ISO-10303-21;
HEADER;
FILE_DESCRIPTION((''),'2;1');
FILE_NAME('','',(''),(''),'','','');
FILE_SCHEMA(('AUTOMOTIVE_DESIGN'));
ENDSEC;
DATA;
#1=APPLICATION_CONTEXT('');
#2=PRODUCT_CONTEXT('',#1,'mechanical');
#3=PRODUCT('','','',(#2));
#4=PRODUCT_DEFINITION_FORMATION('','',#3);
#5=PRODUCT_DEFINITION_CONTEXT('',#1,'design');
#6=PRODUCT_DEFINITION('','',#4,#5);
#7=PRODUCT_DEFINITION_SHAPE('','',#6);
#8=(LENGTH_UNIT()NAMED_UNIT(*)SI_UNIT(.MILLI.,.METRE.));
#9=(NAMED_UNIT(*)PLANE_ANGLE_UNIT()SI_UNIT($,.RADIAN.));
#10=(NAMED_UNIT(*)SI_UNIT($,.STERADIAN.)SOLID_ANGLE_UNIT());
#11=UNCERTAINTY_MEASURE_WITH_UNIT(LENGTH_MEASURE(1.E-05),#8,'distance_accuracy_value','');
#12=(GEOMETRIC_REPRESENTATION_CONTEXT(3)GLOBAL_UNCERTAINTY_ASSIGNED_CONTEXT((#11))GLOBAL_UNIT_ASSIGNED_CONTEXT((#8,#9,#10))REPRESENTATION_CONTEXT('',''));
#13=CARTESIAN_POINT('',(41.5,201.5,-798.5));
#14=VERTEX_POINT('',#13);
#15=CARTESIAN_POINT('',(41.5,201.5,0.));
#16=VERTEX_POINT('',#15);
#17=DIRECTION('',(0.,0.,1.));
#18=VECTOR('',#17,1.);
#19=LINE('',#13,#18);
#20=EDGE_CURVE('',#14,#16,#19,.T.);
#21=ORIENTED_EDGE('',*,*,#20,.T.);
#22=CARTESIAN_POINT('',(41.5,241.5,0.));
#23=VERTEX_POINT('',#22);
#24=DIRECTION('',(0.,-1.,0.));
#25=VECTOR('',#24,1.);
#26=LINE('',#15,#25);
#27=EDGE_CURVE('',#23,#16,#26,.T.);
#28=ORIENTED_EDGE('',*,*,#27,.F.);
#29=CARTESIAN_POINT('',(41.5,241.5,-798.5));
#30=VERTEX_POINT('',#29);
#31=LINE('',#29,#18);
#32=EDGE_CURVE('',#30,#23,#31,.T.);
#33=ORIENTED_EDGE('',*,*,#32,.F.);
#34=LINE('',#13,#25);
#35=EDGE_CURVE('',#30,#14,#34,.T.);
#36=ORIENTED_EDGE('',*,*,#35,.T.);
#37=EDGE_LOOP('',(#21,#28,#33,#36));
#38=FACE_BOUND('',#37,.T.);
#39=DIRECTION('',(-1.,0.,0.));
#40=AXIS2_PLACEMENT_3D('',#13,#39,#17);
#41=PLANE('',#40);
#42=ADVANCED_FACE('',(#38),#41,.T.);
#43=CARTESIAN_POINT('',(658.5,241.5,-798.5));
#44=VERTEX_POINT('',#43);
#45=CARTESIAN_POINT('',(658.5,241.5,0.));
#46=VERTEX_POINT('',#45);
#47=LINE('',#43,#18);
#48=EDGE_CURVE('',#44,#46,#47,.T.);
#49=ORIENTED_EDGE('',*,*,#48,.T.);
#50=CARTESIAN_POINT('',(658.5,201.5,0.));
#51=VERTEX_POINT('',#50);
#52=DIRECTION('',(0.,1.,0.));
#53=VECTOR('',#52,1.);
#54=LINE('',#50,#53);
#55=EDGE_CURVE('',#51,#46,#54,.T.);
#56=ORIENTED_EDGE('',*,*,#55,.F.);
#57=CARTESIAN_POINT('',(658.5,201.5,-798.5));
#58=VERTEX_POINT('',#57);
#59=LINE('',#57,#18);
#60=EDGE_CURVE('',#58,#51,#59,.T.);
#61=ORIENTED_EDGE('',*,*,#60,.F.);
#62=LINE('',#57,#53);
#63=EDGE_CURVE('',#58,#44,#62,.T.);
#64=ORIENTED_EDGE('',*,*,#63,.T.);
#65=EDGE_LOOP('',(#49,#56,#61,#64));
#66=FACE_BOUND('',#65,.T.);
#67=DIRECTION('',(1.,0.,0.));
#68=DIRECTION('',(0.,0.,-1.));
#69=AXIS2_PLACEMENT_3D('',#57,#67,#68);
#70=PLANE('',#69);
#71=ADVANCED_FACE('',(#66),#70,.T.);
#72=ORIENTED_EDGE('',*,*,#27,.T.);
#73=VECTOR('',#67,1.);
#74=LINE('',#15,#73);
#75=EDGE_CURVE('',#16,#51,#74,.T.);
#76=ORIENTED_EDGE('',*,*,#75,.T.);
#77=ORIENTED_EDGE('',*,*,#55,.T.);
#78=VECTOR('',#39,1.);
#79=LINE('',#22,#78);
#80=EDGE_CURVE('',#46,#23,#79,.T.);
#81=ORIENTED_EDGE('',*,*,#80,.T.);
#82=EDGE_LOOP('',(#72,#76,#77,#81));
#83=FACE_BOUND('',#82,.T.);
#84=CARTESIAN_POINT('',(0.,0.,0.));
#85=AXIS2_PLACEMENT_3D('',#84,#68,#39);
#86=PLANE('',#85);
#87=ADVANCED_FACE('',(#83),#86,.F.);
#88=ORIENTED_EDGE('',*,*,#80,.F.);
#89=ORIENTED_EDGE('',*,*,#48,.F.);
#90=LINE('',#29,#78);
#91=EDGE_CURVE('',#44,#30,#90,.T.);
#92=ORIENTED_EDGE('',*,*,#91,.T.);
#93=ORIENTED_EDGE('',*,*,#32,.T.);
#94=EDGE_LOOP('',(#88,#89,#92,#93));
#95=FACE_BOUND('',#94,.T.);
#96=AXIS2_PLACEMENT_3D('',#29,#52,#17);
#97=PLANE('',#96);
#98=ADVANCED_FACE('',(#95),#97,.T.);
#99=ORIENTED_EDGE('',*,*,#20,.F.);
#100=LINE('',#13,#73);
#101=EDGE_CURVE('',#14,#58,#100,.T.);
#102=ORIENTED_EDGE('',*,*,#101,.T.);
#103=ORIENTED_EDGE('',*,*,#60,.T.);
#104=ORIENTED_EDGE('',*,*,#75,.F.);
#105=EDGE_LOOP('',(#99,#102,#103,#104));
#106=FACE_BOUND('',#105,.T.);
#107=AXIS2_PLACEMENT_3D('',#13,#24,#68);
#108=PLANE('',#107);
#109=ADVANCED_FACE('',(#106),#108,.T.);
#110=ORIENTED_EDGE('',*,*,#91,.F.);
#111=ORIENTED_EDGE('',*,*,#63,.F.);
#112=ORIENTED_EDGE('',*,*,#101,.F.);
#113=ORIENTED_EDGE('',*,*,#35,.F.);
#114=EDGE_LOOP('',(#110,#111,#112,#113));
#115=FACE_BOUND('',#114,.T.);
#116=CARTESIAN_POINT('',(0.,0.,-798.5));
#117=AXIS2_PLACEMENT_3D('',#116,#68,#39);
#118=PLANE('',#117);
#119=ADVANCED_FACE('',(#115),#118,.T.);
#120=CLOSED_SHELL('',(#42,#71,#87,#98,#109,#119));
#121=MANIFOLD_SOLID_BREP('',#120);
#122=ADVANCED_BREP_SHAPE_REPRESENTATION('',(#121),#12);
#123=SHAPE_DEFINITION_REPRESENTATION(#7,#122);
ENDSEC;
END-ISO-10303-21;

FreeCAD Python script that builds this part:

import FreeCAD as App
import Part
import Sketcher


def add_polygon(sketch, points):
    """Adds a closed chain of lines whose ends are joined by coincident constraints."""
    first, n = sketch.GeometryCount, len(points)
    for a, b in zip(points, points[1:] + points[:1]):
        sketch.addGeometry(Part.LineSegment(App.Vector(*a, 0), App.Vector(*b, 0)), False)
    for i in range(n):
        sketch.addConstraint(Sketcher.Constraint("Coincident", first + i, 2, first + (i + 1) % n, 1))

doc = App.newDocument("Part")
body = doc.addObject("PartDesign::Body", "Body")

# Sketch on XY plane
sketch1 = doc.addObject("Sketcher::SketchObject", "Sketch")
body.addObject(sketch1)
sketch1.AttachmentSupport = (doc.XY_Plane, [""])
sketch1.MapMode = "FlatFace"
add_polygon(sketch1, [(41.5, 241.5), (41.5, 201.5), (658.5, 201.5), (658.5, 241.5)])  # lines 0-3
sketch1.addConstraint([
    Sketcher.Constraint("Vertical", 0),
    Sketcher.Constraint("Horizontal", 1),
    Sketcher.Constraint("Vertical", 2),
    Sketcher.Constraint("Horizontal", 3),
    Sketcher.Constraint("DistanceX", 1, 1, 1, 2, 617.0),
    Sketcher.Constraint("DistanceY", 0, 2, 0, 1, 40.0),
    Sketcher.Constraint("DistanceX", -1, 1, 0, 2, 41.5),
    Sketcher.Constraint("DistanceY", -1, 1, 0, 2, 201.5),
])
pad1 = doc.addObject("PartDesign::Pad", "Pad")
body.addObject(pad1)
pad1.Profile = sketch1
pad1.Length = 798.5
pad1.Reversed = True

doc.recompute()
